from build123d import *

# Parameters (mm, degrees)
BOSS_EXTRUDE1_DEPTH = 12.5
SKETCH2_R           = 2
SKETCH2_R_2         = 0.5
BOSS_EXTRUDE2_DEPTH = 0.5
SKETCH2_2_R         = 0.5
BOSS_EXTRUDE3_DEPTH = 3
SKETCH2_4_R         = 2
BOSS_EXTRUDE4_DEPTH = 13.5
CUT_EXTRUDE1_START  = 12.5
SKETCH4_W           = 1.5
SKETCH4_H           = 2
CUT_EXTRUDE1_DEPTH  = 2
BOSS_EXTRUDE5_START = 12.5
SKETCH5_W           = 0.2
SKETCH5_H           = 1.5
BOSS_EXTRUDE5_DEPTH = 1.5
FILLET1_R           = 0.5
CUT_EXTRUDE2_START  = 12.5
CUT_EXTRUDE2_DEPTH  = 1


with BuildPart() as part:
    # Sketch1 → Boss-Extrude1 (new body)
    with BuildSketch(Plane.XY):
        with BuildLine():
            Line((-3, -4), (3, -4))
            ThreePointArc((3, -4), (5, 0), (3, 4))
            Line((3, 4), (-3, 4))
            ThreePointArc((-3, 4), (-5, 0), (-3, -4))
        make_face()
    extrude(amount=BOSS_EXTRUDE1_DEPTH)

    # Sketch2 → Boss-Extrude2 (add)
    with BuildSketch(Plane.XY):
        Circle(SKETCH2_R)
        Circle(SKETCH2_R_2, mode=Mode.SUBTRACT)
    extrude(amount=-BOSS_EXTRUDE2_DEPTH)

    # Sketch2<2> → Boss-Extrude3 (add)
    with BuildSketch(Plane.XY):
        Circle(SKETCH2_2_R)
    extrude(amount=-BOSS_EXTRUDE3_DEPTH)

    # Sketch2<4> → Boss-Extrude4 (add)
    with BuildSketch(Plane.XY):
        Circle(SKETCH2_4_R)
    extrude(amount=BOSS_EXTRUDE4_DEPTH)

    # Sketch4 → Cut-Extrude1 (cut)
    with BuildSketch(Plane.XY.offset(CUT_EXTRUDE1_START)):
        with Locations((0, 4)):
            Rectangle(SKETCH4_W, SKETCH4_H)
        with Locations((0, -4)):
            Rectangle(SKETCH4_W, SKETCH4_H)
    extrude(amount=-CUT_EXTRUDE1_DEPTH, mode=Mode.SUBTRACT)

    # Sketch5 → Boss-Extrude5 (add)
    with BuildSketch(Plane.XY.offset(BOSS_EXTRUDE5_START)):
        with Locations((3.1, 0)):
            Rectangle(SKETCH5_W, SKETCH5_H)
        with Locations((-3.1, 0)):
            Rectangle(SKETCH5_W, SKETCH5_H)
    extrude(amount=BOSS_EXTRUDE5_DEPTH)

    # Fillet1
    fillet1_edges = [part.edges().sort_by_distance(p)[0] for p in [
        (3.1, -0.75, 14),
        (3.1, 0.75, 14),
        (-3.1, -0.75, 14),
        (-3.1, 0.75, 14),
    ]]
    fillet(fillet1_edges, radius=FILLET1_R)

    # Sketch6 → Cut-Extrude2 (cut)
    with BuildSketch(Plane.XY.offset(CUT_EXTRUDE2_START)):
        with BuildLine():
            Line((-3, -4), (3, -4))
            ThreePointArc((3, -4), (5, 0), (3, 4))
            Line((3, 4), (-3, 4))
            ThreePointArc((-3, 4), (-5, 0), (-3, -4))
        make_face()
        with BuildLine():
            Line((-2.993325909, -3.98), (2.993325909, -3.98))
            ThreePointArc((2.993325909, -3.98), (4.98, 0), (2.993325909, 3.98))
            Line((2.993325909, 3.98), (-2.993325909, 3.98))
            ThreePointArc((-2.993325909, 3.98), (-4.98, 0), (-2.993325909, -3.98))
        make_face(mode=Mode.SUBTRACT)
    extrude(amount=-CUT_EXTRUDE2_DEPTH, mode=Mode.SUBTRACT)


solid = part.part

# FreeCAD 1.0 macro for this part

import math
import FreeCAD as App
import Part
import Sketcher
Q = App.Units.Quantity


def edges_at(feature, points):
    """Names of the edges that pass closest to the given points."""
    edges = feature.Shape.Edges
    near = lambda p: min(range(len(edges)), key=lambda i: edges[i].distToShape(Part.Vertex(*p))[0])
    return sorted({f"Edge{near(p) + 1}" for p in points})


def add_polygon(sketch, points):
    """Adds a closed chain of lines whose ends are joined by coincident constraints."""
    first, n = sketch.GeometryCount, len(points)
    for a, b in zip(points, points[1:] + points[:1]):
        sketch.addGeometry(Part.LineSegment(App.Vector(*a, 0), App.Vector(*b, 0)), False)
    for i in range(n):
        sketch.addConstraint(Sketcher.Constraint("Coincident", first + i, 2, first + (i + 1) % n, 1))

doc = App.newDocument("Part")
body = doc.addObject("PartDesign::Body", "Body")

sketch1 = body.newObject("Sketcher::SketchObject", "Sketch")
sketch1.AttachmentSupport = (doc.getObject("XY_Plane"), [""])
sketch1.MapMode = "FlatFace"
sketch1.addGeometry(Part.LineSegment(App.Vector(-3, -4, 0), App.Vector(3, -4, 0)), False)
sketch1.addGeometry(Part.ArcOfCircle(Part.Circle(App.Vector(0, 0, 0), App.Vector(0, 0, 1), 5), math.radians(-53.130102), math.radians(53.130102)), False)
sketch1.addGeometry(Part.LineSegment(App.Vector(3, 4, 0), App.Vector(-3, 4, 0)), False)
sketch1.addGeometry(Part.ArcOfCircle(Part.Circle(App.Vector(0, 0, 0), App.Vector(0, 0, 1), 5), math.radians(126.869898), math.radians(233.130102)), False)
sketch1.addConstraint(Sketcher.Constraint("Coincident", 0, 2, 1, 1))
sketch1.addConstraint(Sketcher.Constraint("Coincident", 1, 2, 2, 1))
sketch1.addConstraint(Sketcher.Constraint("Coincident", 2, 2, 3, 1))
sketch1.addConstraint(Sketcher.Constraint("Coincident", 3, 2, 0, 1))
sketch1.addConstraint(Sketcher.Constraint("Horizontal", 0))
sketch1.addConstraint(Sketcher.Constraint("Horizontal", 2))
sketch1.addConstraint(Sketcher.Constraint("Coincident", 1, 3, -1, 1))
sketch1.addConstraint(Sketcher.Constraint("Coincident", 3, 3, -1, 1))
sketch1.addConstraint(Sketcher.Constraint("Equal", 1, 3))
sketch1.addConstraint(Sketcher.Constraint("Vertical", 0, 2, 1, 2))
sketch1.addConstraint(Sketcher.Constraint("Radius", 1, Q("5 mm")))
sketch1.addConstraint(Sketcher.Constraint("DistanceX", 0, 1, 0, 2, Q("6 mm")))
pad1 = body.newObject("PartDesign::Pad", "Pad")
pad1.Profile = sketch1
pad1.Length = 12.5

sketch2 = body.newObject("Sketcher::SketchObject", "Sketch001")
sketch2.AttachmentSupport = (doc.getObject("XY_Plane"), [""])
sketch2.MapMode = "FlatFace"
sketch2.addGeometry(Part.Circle(App.Vector(0, 0, 0), App.Vector(0, 0, 1), 2), False)
sketch2.addGeometry(Part.Circle(App.Vector(0, 0, 0), App.Vector(0, 0, 1), 0.5), False)
sketch2.addConstraint(Sketcher.Constraint("Coincident", 0, 3, -1, 1))
sketch2.addConstraint(Sketcher.Constraint("Coincident", 1, 3, -1, 1))
sketch2.addConstraint(Sketcher.Constraint("Diameter", 0, Q("4 mm")))
sketch2.addConstraint(Sketcher.Constraint("Diameter", 1, Q("1 mm")))
pad2 = body.newObject("PartDesign::Pad", "Pad001")
pad2.Profile = sketch2
pad2.Length = 0.5
pad2.Reversed = True

sketch3 = body.newObject("Sketcher::SketchObject", "Sketch002")
sketch3.AttachmentSupport = (doc.getObject("XY_Plane"), [""])
sketch3.MapMode = "FlatFace"
sketch3.addGeometry(Part.Circle(App.Vector(0, 0, 0), App.Vector(0, 0, 1), 0.5), False)
sketch3.addConstraint(Sketcher.Constraint("Coincident", 0, 3, -1, 1))
sketch3.addConstraint(Sketcher.Constraint("Diameter", 0, Q("1 mm")))
pad3 = body.newObject("PartDesign::Pad", "Pad002")
pad3.Profile = sketch3
pad3.Length = 3
pad3.Reversed = True

sketch4 = body.newObject("Sketcher::SketchObject", "Sketch003")
sketch4.AttachmentSupport = (doc.getObject("XY_Plane"), [""])
sketch4.MapMode = "FlatFace"
sketch4.addGeometry(Part.Circle(App.Vector(0, 0, 0), App.Vector(0, 0, 1), 2), False)
sketch4.addConstraint(Sketcher.Constraint("Coincident", 0, 3, -1, 1))
sketch4.addConstraint(Sketcher.Constraint("Diameter", 0, Q("4 mm")))
pad4 = body.newObject("PartDesign::Pad", "Pad003")
pad4.Profile = sketch4
pad4.Length = 13.5

sketch5 = body.newObject("Sketcher::SketchObject", "Sketch004")
sketch5.AttachmentSupport = (doc.getObject("XY_Plane"), [""])
sketch5.MapMode = "FlatFace"
sketch5.AttachmentOffset = App.Placement(App.Vector(0, 0, 12.5), App.Rotation())
add_polygon(sketch5, [(-0.75, 5), (-0.75, 3), (0.75, 3), (0.75, 5)])
add_polygon(sketch5, [(-0.75, -3), (-0.75, -5), (0.75, -5), (0.75, -3)])
sketch5.addConstraint(Sketcher.Constraint("Vertical", 0))
sketch5.addConstraint(Sketcher.Constraint("Horizontal", 1))
sketch5.addConstraint(Sketcher.Constraint("Vertical", 2))
sketch5.addConstraint(Sketcher.Constraint("Horizontal", 3))
sketch5.addConstraint(Sketcher.Constraint("Vertical", 4))
sketch5.addConstraint(Sketcher.Constraint("Horizontal", 5))
sketch5.addConstraint(Sketcher.Constraint("Vertical", 6))
sketch5.addConstraint(Sketcher.Constraint("Horizontal", 7))
sketch5.addConstraint(Sketcher.Constraint("Symmetric", 2, 2, 4, 2, -1, 1))
sketch5.addConstraint(Sketcher.Constraint("Symmetric", 0, 2, 6, 2, -1, 1))
sketch5.addConstraint(Sketcher.Constraint("Vertical", 3, 2, 4, 2))
sketch5.addConstraint(Sketcher.Constraint("DistanceY", 0, 2, 0, 1, Q("2 mm")))
sketch5.addConstraint(Sketcher.Constraint("DistanceX", 1, 1, 1, 2, Q("1.5 mm")))
sketch5.addConstraint(Sketcher.Constraint("DistanceY", -1, 1, 0, 2, Q("3 mm")))
pocket1 = body.newObject("PartDesign::Pocket", "Pocket")
pocket1.Profile = sketch5
pocket1.Length = 2

sketch6 = body.newObject("Sketcher::SketchObject", "Sketch005")
sketch6.AttachmentSupport = (doc.getObject("XY_Plane"), [""])
sketch6.MapMode = "FlatFace"
sketch6.AttachmentOffset = App.Placement(App.Vector(0, 0, 12.5), App.Rotation())
add_polygon(sketch6, [(3, 0.75), (3, -0.75), (3.2, -0.75), (3.2, 0.75)])
add_polygon(sketch6, [(-3.2, 0.75), (-3.2, -0.75), (-3, -0.75), (-3, 0.75)])
sketch6.addConstraint(Sketcher.Constraint("Vertical", 0))
sketch6.addConstraint(Sketcher.Constraint("Horizontal", 1))
sketch6.addConstraint(Sketcher.Constraint("Vertical", 2))
sketch6.addConstraint(Sketcher.Constraint("Horizontal", 3))
sketch6.addConstraint(Sketcher.Constraint("Vertical", 4))
sketch6.addConstraint(Sketcher.Constraint("Horizontal", 5))
sketch6.addConstraint(Sketcher.Constraint("Vertical", 6))
sketch6.addConstraint(Sketcher.Constraint("Horizontal", 7))
sketch6.addConstraint(Sketcher.Constraint("Symmetric", 2, 2, 4, 2, -1, 1))
sketch6.addConstraint(Sketcher.Constraint("Symmetric", 0, 2, 6, 2, -1, 1))
sketch6.addConstraint(Sketcher.Constraint("Horizontal", 1, 2, 4, 2))
sketch6.addConstraint(Sketcher.Constraint("DistanceX", 1, 1, 1, 2, Q("0.2 mm")))
sketch6.addConstraint(Sketcher.Constraint("DistanceY", 0, 2, 0, 1, Q("1.5 mm")))
sketch6.addConstraint(Sketcher.Constraint("DistanceX", -1, 1, 0, 2, Q("3 mm")))
pad5 = body.newObject("PartDesign::Pad", "Pad004")
pad5.Profile = sketch6
pad5.Length = 1.5
doc.recompute()

fillet = body.newObject("PartDesign::Fillet", "Fillet")
fillet.Base = (pad5, edges_at(pad5, [
    (3.1, -0.75, 14),
    (3.1, 0.75, 14),
    (-3.1, -0.75, 14),
    (-3.1, 0.75, 14),
]))
fillet.Radius = 0.5

sketch7 = body.newObject("Sketcher::SketchObject", "Sketch006")
sketch7.AttachmentSupport = (doc.getObject("XY_Plane"), [""])
sketch7.MapMode = "FlatFace"
sketch7.AttachmentOffset = App.Placement(App.Vector(0, 0, 12.5), App.Rotation())
sketch7.addGeometry(Part.LineSegment(App.Vector(-3, -4, 0), App.Vector(3, -4, 0)), False)
sketch7.addGeometry(Part.ArcOfCircle(Part.Circle(App.Vector(0, 0, 0), App.Vector(0, 0, 1), 5), math.radians(-53.130102), math.radians(53.130102)), False)
sketch7.addGeometry(Part.LineSegment(App.Vector(3, 4, 0), App.Vector(-3, 4, 0)), False)
sketch7.addGeometry(Part.ArcOfCircle(Part.Circle(App.Vector(0, 0, 0), App.Vector(0, 0, 1), 5), math.radians(126.869898), math.radians(233.130102)), False)
sketch7.addGeometry(Part.LineSegment(App.Vector(2.993326, -3.98, 0), App.Vector(-2.993326, -3.98, 0)), False)
sketch7.addGeometry(Part.ArcOfCircle(Part.Circle(App.Vector(0, 0, 0), App.Vector(0, 0, 1), 4.98), math.radians(126.946531), math.radians(233.053469)), False)
sketch7.addGeometry(Part.LineSegment(App.Vector(-2.993326, 3.98, 0), App.Vector(2.993326, 3.98, 0)), False)
sketch7.addGeometry(Part.ArcOfCircle(Part.Circle(App.Vector(0, 0, 0), App.Vector(0, 0, 1), 4.98), math.radians(-53.053469), math.radians(53.053469)), False)
sketch7.addConstraint(Sketcher.Constraint("Coincident", 0, 2, 1, 1))
sketch7.addConstraint(Sketcher.Constraint("Coincident", 1, 2, 2, 1))
sketch7.addConstraint(Sketcher.Constraint("Coincident", 2, 2, 3, 1))
sketch7.addConstraint(Sketcher.Constraint("Coincident", 3, 2, 0, 1))
sketch7.addConstraint(Sketcher.Constraint("Coincident", 4, 2, 5, 2))
sketch7.addConstraint(Sketcher.Constraint("Coincident", 5, 1, 6, 1))
sketch7.addConstraint(Sketcher.Constraint("Coincident", 6, 2, 7, 2))
sketch7.addConstraint(Sketcher.Constraint("Coincident", 7, 1, 4, 1))
sketch7.addConstraint(Sketcher.Constraint("Horizontal", 0))
sketch7.addConstraint(Sketcher.Constraint("Horizontal", 2))
sketch7.addConstraint(Sketcher.Constraint("Horizontal", 4))
sketch7.addConstraint(Sketcher.Constraint("Horizontal", 6))
sketch7.addConstraint(Sketcher.Constraint("Coincident", 1, 3, -1, 1))
sketch7.addConstraint(Sketcher.Constraint("Coincident", 3, 3, -1, 1))
sketch7.addConstraint(Sketcher.Constraint("Coincident", 5, 3, -1, 1))
sketch7.addConstraint(Sketcher.Constraint("Coincident", 7, 3, -1, 1))
sketch7.addConstraint(Sketcher.Constraint("Equal", 1, 3))
sketch7.addConstraint(Sketcher.Constraint("Equal", 5, 7))
sketch7.addConstraint(Sketcher.Constraint("Vertical", 0, 2, 1, 2))
sketch7.addConstraint(Sketcher.Constraint("Vertical", 4, 2, 5, 1))
sketch7.addConstraint(Sketcher.Constraint("Radius", 1, Q("5 mm")))
sketch7.addConstraint(Sketcher.Constraint("DistanceX", 0, 1, 0, 2, Q("6 mm")))
sketch7.addConstraint(Sketcher.Constraint("Radius", 5, Q("4.98 mm")))
sketch7.addConstraint(Sketcher.Constraint("DistanceY", 4, 2, -1, 1, Q("3.98 mm")))
pocket2 = body.newObject("PartDesign::Pocket", "Pocket001")
pocket2.Profile = sketch7
pocket2.Length = 1

doc.recompute()
